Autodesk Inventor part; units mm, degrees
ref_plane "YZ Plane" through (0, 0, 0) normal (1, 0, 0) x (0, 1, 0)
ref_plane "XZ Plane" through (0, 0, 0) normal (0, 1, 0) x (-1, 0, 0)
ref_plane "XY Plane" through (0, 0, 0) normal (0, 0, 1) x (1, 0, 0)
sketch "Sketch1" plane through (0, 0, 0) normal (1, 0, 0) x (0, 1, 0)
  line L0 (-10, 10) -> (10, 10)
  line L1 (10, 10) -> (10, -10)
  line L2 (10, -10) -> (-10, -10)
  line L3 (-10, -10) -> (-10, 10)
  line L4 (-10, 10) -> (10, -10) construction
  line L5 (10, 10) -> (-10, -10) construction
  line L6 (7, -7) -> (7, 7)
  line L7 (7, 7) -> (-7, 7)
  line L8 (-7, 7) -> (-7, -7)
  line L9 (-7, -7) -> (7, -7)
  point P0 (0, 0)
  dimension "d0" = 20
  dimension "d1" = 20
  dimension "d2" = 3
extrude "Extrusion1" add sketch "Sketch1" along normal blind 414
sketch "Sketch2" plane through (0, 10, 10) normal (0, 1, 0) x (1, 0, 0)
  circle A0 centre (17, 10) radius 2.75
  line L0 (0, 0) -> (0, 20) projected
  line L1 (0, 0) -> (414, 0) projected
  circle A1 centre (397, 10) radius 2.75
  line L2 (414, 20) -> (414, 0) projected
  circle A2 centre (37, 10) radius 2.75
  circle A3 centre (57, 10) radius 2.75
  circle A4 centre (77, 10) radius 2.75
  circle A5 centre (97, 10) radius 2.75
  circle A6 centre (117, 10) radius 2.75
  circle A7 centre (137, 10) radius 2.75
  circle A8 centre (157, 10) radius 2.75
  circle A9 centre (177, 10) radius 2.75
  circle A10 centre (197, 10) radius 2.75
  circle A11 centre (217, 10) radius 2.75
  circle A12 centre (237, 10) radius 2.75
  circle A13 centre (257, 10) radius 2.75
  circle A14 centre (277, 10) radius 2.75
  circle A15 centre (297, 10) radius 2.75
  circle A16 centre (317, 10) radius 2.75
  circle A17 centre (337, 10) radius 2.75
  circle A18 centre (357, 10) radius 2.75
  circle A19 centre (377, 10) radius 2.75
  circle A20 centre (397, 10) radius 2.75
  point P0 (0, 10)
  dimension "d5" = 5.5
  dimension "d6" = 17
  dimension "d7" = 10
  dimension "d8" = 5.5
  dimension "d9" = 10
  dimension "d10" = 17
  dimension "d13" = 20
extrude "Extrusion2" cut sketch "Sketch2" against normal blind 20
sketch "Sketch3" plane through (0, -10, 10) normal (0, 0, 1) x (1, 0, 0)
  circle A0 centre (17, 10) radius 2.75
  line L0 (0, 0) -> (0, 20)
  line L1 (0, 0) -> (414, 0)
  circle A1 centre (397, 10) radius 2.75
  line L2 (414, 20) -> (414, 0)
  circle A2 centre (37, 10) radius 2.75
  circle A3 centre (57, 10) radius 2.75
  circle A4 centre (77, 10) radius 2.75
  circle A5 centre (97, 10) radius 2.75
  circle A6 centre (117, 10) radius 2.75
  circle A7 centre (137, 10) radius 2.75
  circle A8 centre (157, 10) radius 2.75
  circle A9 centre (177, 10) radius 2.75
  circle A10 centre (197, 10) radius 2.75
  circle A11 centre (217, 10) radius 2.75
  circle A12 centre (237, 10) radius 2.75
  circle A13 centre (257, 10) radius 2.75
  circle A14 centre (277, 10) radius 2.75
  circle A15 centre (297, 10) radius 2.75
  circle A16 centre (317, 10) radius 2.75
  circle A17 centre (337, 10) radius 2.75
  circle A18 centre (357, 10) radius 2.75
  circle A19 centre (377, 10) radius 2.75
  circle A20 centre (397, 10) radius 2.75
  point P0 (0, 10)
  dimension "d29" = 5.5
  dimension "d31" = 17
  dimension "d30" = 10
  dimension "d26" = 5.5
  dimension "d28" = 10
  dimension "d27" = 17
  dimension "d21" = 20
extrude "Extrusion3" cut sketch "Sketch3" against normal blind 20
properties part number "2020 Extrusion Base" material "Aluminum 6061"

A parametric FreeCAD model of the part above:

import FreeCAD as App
import Part
import Sketcher

doc = App.newDocument("Part")
params = doc.addObject("Spreadsheet::Sheet", "Params")
for row, (alias, value) in enumerate([
    ("sketch1_width", "20 mm"),
    ("pad1_length", "414 mm"),
    ("sketch2_diameter", "5.5 mm"),
    ("pocket1_length", "20 mm"),
    ("sketch3_diameter", "5.5 mm"),
    ("pocket2_length", "20 mm"),
], start=1):
    params.set(f"A{row}", alias)
    params.set(f"B{row}", "=" + value)
    params.setAlias(f"B{row}", alias)

body = doc.addObject("PartDesign::Body", "Body")

# Sketch on YZ plane
sketch1 = body.newObject("Sketcher::SketchObject", "Sketch")
sketch1.AttachmentSupport = (doc.getObject("YZ_Plane"), [""])
sketch1.MapMode = "FlatFace"
sketch1.addGeometry(Part.LineSegment(App.Vector(10, 10, 0), App.Vector(-10, 10, 0)), False)
sketch1.addGeometry(Part.LineSegment(App.Vector(-10, 10, 0), App.Vector(-10, -10, 0)), False)
sketch1.addGeometry(Part.LineSegment(App.Vector(-10, -10, 0), App.Vector(10, -10, 0)), False)
sketch1.addGeometry(Part.LineSegment(App.Vector(10, -10, 0), App.Vector(10, 10, 0)), False)
sketch1.addGeometry(Part.LineSegment(App.Vector(7, 7, 0), App.Vector(7, -7, 0)), False)
sketch1.addGeometry(Part.LineSegment(App.Vector(7, -7, 0), App.Vector(-7, -7, 0)), False)
sketch1.addGeometry(Part.LineSegment(App.Vector(-7, -7, 0), App.Vector(-7, 7, 0)), False)
sketch1.addGeometry(Part.LineSegment(App.Vector(-7, 7, 0), App.Vector(7, 7, 0)), False)
sketch1.addConstraint(Sketcher.Constraint("Coincident", 0, 2, 1, 1))
sketch1.addConstraint(Sketcher.Constraint("Coincident", 1, 2, 2, 1))
sketch1.addConstraint(Sketcher.Constraint("Coincident", 2, 2, 3, 1))
sketch1.addConstraint(Sketcher.Constraint("Coincident", 3, 2, 0, 1))
sketch1.addConstraint(Sketcher.Constraint("Coincident", 4, 2, 5, 1))
sketch1.addConstraint(Sketcher.Constraint("Coincident", 5, 2, 6, 1))
sketch1.addConstraint(Sketcher.Constraint("Coincident", 6, 2, 7, 1))
sketch1.addConstraint(Sketcher.Constraint("Coincident", 7, 2, 4, 1))
sketch1.addConstraint(Sketcher.Constraint("Horizontal", 0))
sketch1.addConstraint(Sketcher.Constraint("Vertical", 1))
sketch1.addConstraint(Sketcher.Constraint("Horizontal", 2))
sketch1.addConstraint(Sketcher.Constraint("Vertical", 3))
sketch1.addConstraint(Sketcher.Constraint("Vertical", 4))
sketch1.addConstraint(Sketcher.Constraint("Horizontal", 5))
sketch1.addConstraint(Sketcher.Constraint("Vertical", 6))
sketch1.addConstraint(Sketcher.Constraint("Horizontal", 7))
sketch1.addConstraint(Sketcher.Constraint("Symmetric", 0, 2, 2, 2, -1, 1))
sketch1.addConstraint(Sketcher.Constraint("Symmetric", 4, 2, 6, 2, -1, 1))
sketch1.addConstraint(Sketcher.Constraint("Equal", 2, 1))
sketch1.addConstraint(Sketcher.Constraint("Equal", 7, 4))
sketch1.addConstraint(Sketcher.Constraint("DistanceX", 0, 2, 0, 1, 20.0))
sketch1.addConstraint(Sketcher.Constraint("DistanceX", 4, 2, 2, 2, 3.0))
sketch1.setExpression("Constraints[20]", "Params.sketch1_width")
pad1 = body.newObject("PartDesign::Pad", "Pad")
pad1.Profile = sketch1
pad1.setExpression("Length", "Params.pad1_length")

# Sketch on XZ plane
sketch2 = body.newObject("Sketcher::SketchObject", "Sketch001")
sketch2.AttachmentSupport = (doc.getObject("XZ_Plane"), [""])
sketch2.MapMode = "FlatFace"
sketch2.AttachmentOffset = App.Placement(App.Vector(0, 0, -10), App.Rotation())
sketch2.addGeometry(Part.Circle(App.Vector(17, 0, 0), App.Vector(0, 0, 1), 2.8), False)
sketch2.addGeometry(Part.Circle(App.Vector(397, 0, 0), App.Vector(0, 0, 1), 2.8), False)
sketch2.addGeometry(Part.Circle(App.Vector(37, 0, 0), App.Vector(0, 0, 1), 2.8), False)
sketch2.addGeometry(Part.Circle(App.Vector(57, 0, 0), App.Vector(0, 0, 1), 2.8), False)
sketch2.addGeometry(Part.Circle(App.Vector(77, 0, 0), App.Vector(0, 0, 1), 2.8), False)
sketch2.addGeometry(Part.Circle(App.Vector(97, 0, 0), App.Vector(0, 0, 1), 2.8), False)
sketch2.addGeometry(Part.Circle(App.Vector(117, 0, 0), App.Vector(0, 0, 1), 2.8), False)
sketch2.addGeometry(Part.Circle(App.Vector(137, 0, 0), App.Vector(0, 0, 1), 2.8), False)
sketch2.addGeometry(Part.Circle(App.Vector(157, 0, 0), App.Vector(0, 0, 1), 2.8), False)
sketch2.addGeometry(Part.Circle(App.Vector(177, 0, 0), App.Vector(0, 0, 1), 2.8), False)
sketch2.addGeometry(Part.Circle(App.Vector(197, 0, 0), App.Vector(0, 0, 1), 2.8), False)
sketch2.addGeometry(Part.Circle(App.Vector(217, 0, 0), App.Vector(0, 0, 1), 2.8), False)
sketch2.addGeometry(Part.Circle(App.Vector(237, 0, 0), App.Vector(0, 0, 1), 2.8), False)
sketch2.addGeometry(Part.Circle(App.Vector(257, 0, 0), App.Vector(0, 0, 1), 2.8), False)
sketch2.addGeometry(Part.Circle(App.Vector(277, 0, 0), App.Vector(0, 0, 1), 2.8), False)
sketch2.addGeometry(Part.Circle(App.Vector(297, 0, 0), App.Vector(0, 0, 1), 2.8), False)
sketch2.addGeometry(Part.Circle(App.Vector(317, 0, 0), App.Vector(0, 0, 1), 2.8), False)
sketch2.addGeometry(Part.Circle(App.Vector(337, 0, 0), App.Vector(0, 0, 1), 2.8), False)
sketch2.addGeometry(Part.Circle(App.Vector(357, 0, 0), App.Vector(0, 0, 1), 2.8), False)
sketch2.addGeometry(Part.Circle(App.Vector(377, 0, 0), App.Vector(0, 0, 1), 2.8), False)
sketch2.addConstraint(Sketcher.Constraint("Equal", 0, 1))
sketch2.addConstraint(Sketcher.Constraint("Equal", 1, 2))
sketch2.addConstraint(Sketcher.Constraint("Equal", 2, 3))
sketch2.addConstraint(Sketcher.Constraint("Equal", 3, 4))
sketch2.addConstraint(Sketcher.Constraint("Equal", 4, 5))
sketch2.addConstraint(Sketcher.Constraint("Equal", 5, 6))
sketch2.addConstraint(Sketcher.Constraint("Equal", 6, 7))
sketch2.addConstraint(Sketcher.Constraint("Equal", 7, 8))
sketch2.addConstraint(Sketcher.Constraint("Equal", 8, 9))
sketch2.addConstraint(Sketcher.Constraint("Equal", 9, 10))
sketch2.addConstraint(Sketcher.Constraint("Equal", 10, 11))
sketch2.addConstraint(Sketcher.Constraint("Equal", 11, 12))
sketch2.addConstraint(Sketcher.Constraint("Equal", 12, 13))
sketch2.addConstraint(Sketcher.Constraint("Equal", 13, 14))
sketch2.addConstraint(Sketcher.Constraint("Equal", 14, 15))
sketch2.addConstraint(Sketcher.Constraint("Equal", 15, 16))
sketch2.addConstraint(Sketcher.Constraint("Equal", 16, 17))
sketch2.addConstraint(Sketcher.Constraint("Equal", 17, 18))
sketch2.addConstraint(Sketcher.Constraint("Equal", 18, 19))
sketch2.addConstraint(Sketcher.Constraint("PointOnObject", 0, 3, -1))
sketch2.addConstraint(Sketcher.Constraint("PointOnObject", 1, 3, -1))
sketch2.addConstraint(Sketcher.Constraint("PointOnObject", 2, 3, -1))
sketch2.addConstraint(Sketcher.Constraint("PointOnObject", 3, 3, -1))
sketch2.addConstraint(Sketcher.Constraint("PointOnObject", 4, 3, -1))
sketch2.addConstraint(Sketcher.Constraint("PointOnObject", 5, 3, -1))
sketch2.addConstraint(Sketcher.Constraint("PointOnObject", 6, 3, -1))
sketch2.addConstraint(Sketcher.Constraint("PointOnObject", 7, 3, -1))
sketch2.addConstraint(Sketcher.Constraint("PointOnObject", 8, 3, -1))
sketch2.addConstraint(Sketcher.Constraint("PointOnObject", 9, 3, -1))
sketch2.addConstraint(Sketcher.Constraint("PointOnObject", 10, 3, -1))
sketch2.addConstraint(Sketcher.Constraint("PointOnObject", 11, 3, -1))
sketch2.addConstraint(Sketcher.Constraint("PointOnObject", 12, 3, -1))
sketch2.addConstraint(Sketcher.Constraint("PointOnObject", 13, 3, -1))
sketch2.addConstraint(Sketcher.Constraint("PointOnObject", 14, 3, -1))
sketch2.addConstraint(Sketcher.Constraint("PointOnObject", 15, 3, -1))
sketch2.addConstraint(Sketcher.Constraint("PointOnObject", 16, 3, -1))
sketch2.addConstraint(Sketcher.Constraint("PointOnObject", 17, 3, -1))
sketch2.addConstraint(Sketcher.Constraint("PointOnObject", 18, 3, -1))
sketch2.addConstraint(Sketcher.Constraint("PointOnObject", 19, 3, -1))
sketch2.addConstraint(Sketcher.Constraint("Diameter", 0, 5.5))
sketch2.addConstraint(Sketcher.Constraint("DistanceX", -1, 1, 0, 3, 17.0))
sketch2.addConstraint(Sketcher.Constraint("DistanceX", 0, 3, 2, 3, 20.0))
sketch2.addConstraint(Sketcher.Constraint("DistanceX", 2, 3, 3, 3, 20.0))
sketch2.addConstraint(Sketcher.Constraint("DistanceX", 3, 3, 4, 3, 20.0))
sketch2.addConstraint(Sketcher.Constraint("DistanceX", 4, 3, 5, 3, 20.0))
sketch2.addConstraint(Sketcher.Constraint("DistanceX", 5, 3, 6, 3, 20.0))
sketch2.addConstraint(Sketcher.Constraint("DistanceX", 6, 3, 7, 3, 20.0))
sketch2.addConstraint(Sketcher.Constraint("DistanceX", 7, 3, 8, 3, 20.0))
sketch2.addConstraint(Sketcher.Constraint("DistanceX", 8, 3, 9, 3, 20.0))
sketch2.addConstraint(Sketcher.Constraint("DistanceX", 9, 3, 10, 3, 20.0))
sketch2.addConstraint(Sketcher.Constraint("DistanceX", 10, 3, 11, 3, 20.0))
sketch2.addConstraint(Sketcher.Constraint("DistanceX", 11, 3, 12, 3, 20.0))
sketch2.addConstraint(Sketcher.Constraint("DistanceX", 12, 3, 13, 3, 20.0))
sketch2.addConstraint(Sketcher.Constraint("DistanceX", 13, 3, 14, 3, 20.0))
sketch2.addConstraint(Sketcher.Constraint("DistanceX", 14, 3, 15, 3, 20.0))
sketch2.addConstraint(Sketcher.Constraint("DistanceX", 15, 3, 16, 3, 20.0))
sketch2.addConstraint(Sketcher.Constraint("DistanceX", 16, 3, 17, 3, 20.0))
sketch2.addConstraint(Sketcher.Constraint("DistanceX", 17, 3, 18, 3, 20.0))
sketch2.addConstraint(Sketcher.Constraint("DistanceX", 19, 3, 1, 3, 20.0))
sketch2.addConstraint(Sketcher.Constraint("DistanceX", 18, 3, 19, 3, 20.0))
sketch2.setExpression("Constraints[39]", "Params.sketch2_diameter")
pocket1 = body.newObject("PartDesign::Pocket", "Pocket")
pocket1.Profile = sketch2
pocket1.setExpression("Length", "Params.pocket1_length")
pocket1.Reversed = True

# Sketch on XY plane
sketch3 = body.newObject("Sketcher::SketchObject", "Sketch002")
sketch3.AttachmentSupport = (doc.getObject("XY_Plane"), [""])
sketch3.MapMode = "FlatFace"
sketch3.AttachmentOffset = App.Placement(App.Vector(0, 0, 10), App.Rotation())
sketch3.addGeometry(Part.Circle(App.Vector(17, 0, 0), App.Vector(0, 0, 1), 2.8), False)
sketch3.addGeometry(Part.Circle(App.Vector(397, 0, 0), App.Vector(0, 0, 1), 2.8), False)
sketch3.addGeometry(Part.Circle(App.Vector(37, 0, 0), App.Vector(0, 0, 1), 2.8), False)
sketch3.addGeometry(Part.Circle(App.Vector(57, 0, 0), App.Vector(0, 0, 1), 2.8), False)
sketch3.addGeometry(Part.Circle(App.Vector(77, 0, 0), App.Vector(0, 0, 1), 2.8), False)
sketch3.addGeometry(Part.Circle(App.Vector(97, 0, 0), App.Vector(0, 0, 1), 2.8), False)
sketch3.addGeometry(Part.Circle(App.Vector(117, 0, 0), App.Vector(0, 0, 1), 2.8), False)
sketch3.addGeometry(Part.Circle(App.Vector(137, 0, 0), App.Vector(0, 0, 1), 2.8), False)
sketch3.addGeometry(Part.Circle(App.Vector(157, 0, 0), App.Vector(0, 0, 1), 2.8), False)
sketch3.addGeometry(Part.Circle(App.Vector(177, 0, 0), App.Vector(0, 0, 1), 2.8), False)
sketch3.addGeometry(Part.Circle(App.Vector(197, 0, 0), App.Vector(0, 0, 1), 2.8), False)
sketch3.addGeometry(Part.Circle(App.Vector(217, 0, 0), App.Vector(0, 0, 1), 2.8), False)
sketch3.addGeometry(Part.Circle(App.Vector(237, 0, 0), App.Vector(0, 0, 1), 2.8), False)
sketch3.addGeometry(Part.Circle(App.Vector(257, 0, 0), App.Vector(0, 0, 1), 2.8), False)
sketch3.addGeometry(Part.Circle(App.Vector(277, 0, 0), App.Vector(0, 0, 1), 2.8), False)
sketch3.addGeometry(Part.Circle(App.Vector(297, 0, 0), App.Vector(0, 0, 1), 2.8), False)
sketch3.addGeometry(Part.Circle(App.Vector(317, 0, 0), App.Vector(0, 0, 1), 2.8), False)
sketch3.addGeometry(Part.Circle(App.Vector(337, 0, 0), App.Vector(0, 0, 1), 2.8), False)
sketch3.addGeometry(Part.Circle(App.Vector(357, 0, 0), App.Vector(0, 0, 1), 2.8), False)
sketch3.addGeometry(Part.Circle(App.Vector(377, 0, 0), App.Vector(0, 0, 1), 2.8), False)
sketch3.addConstraint(Sketcher.Constraint("Equal", 0, 1))
sketch3.addConstraint(Sketcher.Constraint("Equal", 1, 2))
sketch3.addConstraint(Sketcher.Constraint("Equal", 2, 3))
sketch3.addConstraint(Sketcher.Constraint("Equal", 3, 4))
sketch3.addConstraint(Sketcher.Constraint("Equal", 4, 5))
sketch3.addConstraint(Sketcher.Constraint("Equal", 5, 6))
sketch3.addConstraint(Sketcher.Constraint("Equal", 6, 7))
sketch3.addConstraint(Sketcher.Constraint("Equal", 7, 8))
sketch3.addConstraint(Sketcher.Constraint("Equal", 8, 9))
sketch3.addConstraint(Sketcher.Constraint("Equal", 9, 10))
sketch3.addConstraint(Sketcher.Constraint("Equal", 10, 11))
sketch3.addConstraint(Sketcher.Constraint("Equal", 11, 12))
sketch3.addConstraint(Sketcher.Constraint("Equal", 12, 13))
sketch3.addConstraint(Sketcher.Constraint("Equal", 13, 14))
sketch3.addConstraint(Sketcher.Constraint("Equal", 14, 15))
sketch3.addConstraint(Sketcher.Constraint("Equal", 15, 16))
sketch3.addConstraint(Sketcher.Constraint("Equal", 16, 17))
sketch3.addConstraint(Sketcher.Constraint("Equal", 17, 18))
sketch3.addConstraint(Sketcher.Constraint("Equal", 18, 19))
sketch3.addConstraint(Sketcher.Constraint("PointOnObject", 0, 3, -1))
sketch3.addConstraint(Sketcher.Constraint("PointOnObject", 1, 3, -1))
sketch3.addConstraint(Sketcher.Constraint("PointOnObject", 2, 3, -1))
sketch3.addConstraint(Sketcher.Constraint("PointOnObject", 3, 3, -1))
sketch3.addConstraint(Sketcher.Constraint("PointOnObject", 4, 3, -1))
sketch3.addConstraint(Sketcher.Constraint("PointOnObject", 5, 3, -1))
sketch3.addConstraint(Sketcher.Constraint("PointOnObject", 6, 3, -1))
sketch3.addConstraint(Sketcher.Constraint("PointOnObject", 7, 3, -1))
sketch3.addConstraint(Sketcher.Constraint("PointOnObject", 8, 3, -1))
sketch3.addConstraint(Sketcher.Constraint("PointOnObject", 9, 3, -1))
sketch3.addConstraint(Sketcher.Constraint("PointOnObject", 10, 3, -1))
sketch3.addConstraint(Sketcher.Constraint("PointOnObject", 11, 3, -1))
sketch3.addConstraint(Sketcher.Constraint("PointOnObject", 12, 3, -1))
sketch3.addConstraint(Sketcher.Constraint("PointOnObject", 13, 3, -1))
sketch3.addConstraint(Sketcher.Constraint("PointOnObject", 14, 3, -1))
sketch3.addConstraint(Sketcher.Constraint("PointOnObject", 15, 3, -1))
sketch3.addConstraint(Sketcher.Constraint("PointOnObject", 16, 3, -1))
sketch3.addConstraint(Sketcher.Constraint("PointOnObject", 17, 3, -1))
sketch3.addConstraint(Sketcher.Constraint("PointOnObject", 18, 3, -1))
sketch3.addConstraint(Sketcher.Constraint("PointOnObject", 19, 3, -1))
sketch3.addConstraint(Sketcher.Constraint("Diameter", 0, 5.5))
sketch3.addConstraint(Sketcher.Constraint("DistanceX", -1, 1, 0, 3, 17.0))
sketch3.addConstraint(Sketcher.Constraint("DistanceX", 0, 3, 2, 3, 20.0))
sketch3.addConstraint(Sketcher.Constraint("DistanceX", 2, 3, 3, 3, 20.0))
sketch3.addConstraint(Sketcher.Constraint("DistanceX", 3, 3, 4, 3, 20.0))
sketch3.addConstraint(Sketcher.Constraint("DistanceX", 4, 3, 5, 3, 20.0))
sketch3.addConstraint(Sketcher.Constraint("DistanceX", 5, 3, 6, 3, 20.0))
sketch3.addConstraint(Sketcher.Constraint("DistanceX", 6, 3, 7, 3, 20.0))
sketch3.addConstraint(Sketcher.Constraint("DistanceX", 7, 3, 8, 3, 20.0))
sketch3.addConstraint(Sketcher.Constraint("DistanceX", 8, 3, 9, 3, 20.0))
sketch3.addConstraint(Sketcher.Constraint("DistanceX", 9, 3, 10, 3, 20.0))
sketch3.addConstraint(Sketcher.Constraint("DistanceX", 10, 3, 11, 3, 20.0))
sketch3.addConstraint(Sketcher.Constraint("DistanceX", 11, 3, 12, 3, 20.0))
sketch3.addConstraint(Sketcher.Constraint("DistanceX", 12, 3, 13, 3, 20.0))
sketch3.addConstraint(Sketcher.Constraint("DistanceX", 13, 3, 14, 3, 20.0))
sketch3.addConstraint(Sketcher.Constraint("DistanceX", 14, 3, 15, 3, 20.0))
sketch3.addConstraint(Sketcher.Constraint("DistanceX", 15, 3, 16, 3, 20.0))
sketch3.addConstraint(Sketcher.Constraint("DistanceX", 16, 3, 17, 3, 20.0))
sketch3.addConstraint(Sketcher.Constraint("DistanceX", 17, 3, 18, 3, 20.0))
sketch3.addConstraint(Sketcher.Constraint("DistanceX", 19, 3, 1, 3, 20.0))
sketch3.addConstraint(Sketcher.Constraint("DistanceX", 18, 3, 19, 3, 20.0))
sketch3.setExpression("Constraints[39]", "Params.sketch3_diameter")
pocket2 = body.newObject("PartDesign::Pocket", "Pocket001")
pocket2.Profile = sketch3
pocket2.setExpression("Length", "Params.pocket2_length")

doc.recompute()
